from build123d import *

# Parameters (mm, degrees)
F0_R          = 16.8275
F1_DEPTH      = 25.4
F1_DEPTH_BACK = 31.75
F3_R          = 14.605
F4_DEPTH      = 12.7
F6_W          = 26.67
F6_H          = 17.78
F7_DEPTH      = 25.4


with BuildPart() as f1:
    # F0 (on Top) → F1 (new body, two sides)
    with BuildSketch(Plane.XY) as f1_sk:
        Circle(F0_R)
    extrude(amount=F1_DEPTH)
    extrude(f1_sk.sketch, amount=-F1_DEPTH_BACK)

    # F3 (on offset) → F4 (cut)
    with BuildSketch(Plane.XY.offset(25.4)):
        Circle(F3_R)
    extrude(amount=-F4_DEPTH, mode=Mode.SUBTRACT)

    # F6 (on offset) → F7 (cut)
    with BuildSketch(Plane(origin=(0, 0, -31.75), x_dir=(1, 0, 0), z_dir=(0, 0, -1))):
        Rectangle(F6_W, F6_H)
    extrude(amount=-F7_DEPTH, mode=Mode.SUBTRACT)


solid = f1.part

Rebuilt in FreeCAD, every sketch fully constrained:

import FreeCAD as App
import Part
import Sketcher
from FreeCAD import Vector
Q = App.Units.Quantity

doc = App.newDocument("Part")
body = doc.addObject("PartDesign::Body", "Body")

sketch1 = doc.addObject("Sketcher::SketchObject", "Sketch")
body.addObject(sketch1)
sketch1.AttachmentSupport = (doc.XY_Plane, [""])
sketch1.MapMode = "FlatFace"
sketch1.addGeometry(Part.Circle(Vector(0, 0, 0), Vector(0, 0, 1), 17), False)
sketch1.addConstraint([
    Sketcher.Constraint("Coincident", 0, 3, -1, 1),
    Sketcher.Constraint("Diameter", 0, Q("1.325 in")),
])
pad1 = doc.addObject("PartDesign::Pad", "Pad")
body.addObject(pad1)
pad1.Profile = sketch1
pad1.Type = "TwoLengths"
pad1.Length = Q("1 in")
pad1.Length2 = Q("1.25 in")

sketch2 = doc.addObject("Sketcher::SketchObject", "Sketch001")
body.addObject(sketch2)
sketch2.AttachmentSupport = (doc.XY_Plane, [""])
sketch2.MapMode = "FlatFace"
sketch2.AttachmentOffset = App.Placement(Vector(0, 0, 1 * 25.4), App.Rotation())
sketch2.addGeometry(Part.Circle(Vector(0, 0, 0), Vector(0, 0, 1), 15), False)
sketch2.addConstraint([
    Sketcher.Constraint("Coincident", 0, 3, -1, 1),
    Sketcher.Constraint("Diameter", 0, Q("1.15 in")),
])
pocket1 = doc.addObject("PartDesign::Pocket", "Pocket")
body.addObject(pocket1)
pocket1.Profile = sketch2
pocket1.Length = Q("0.5 in")

sketch3 = doc.addObject("Sketcher::SketchObject", "Sketch002")
body.addObject(sketch3)
sketch3.AttachmentSupport = (doc.XY_Plane, [""])
sketch3.MapMode = "FlatFace"
sketch3.AttachmentOffset = App.Placement(Vector(0, 0, -1.25 * 25.4), App.Rotation())
sketch3.addGeometry([
    Part.LineSegment(Vector(-13, -9, 0), Vector(-13, 9, 0)),
    Part.LineSegment(Vector(-13, 9, 0), Vector(13, 9, 0)),
    Part.LineSegment(Vector(13, 9, 0), Vector(13, -9, 0)),
    Part.LineSegment(Vector(13, -9, 0), Vector(-13, -9, 0)),
], False)
sketch3.addConstraint([
    Sketcher.Constraint("Coincident", 0, 2, 1, 1),
    Sketcher.Constraint("Coincident", 1, 2, 2, 1),
    Sketcher.Constraint("Coincident", 2, 2, 3, 1),
    Sketcher.Constraint("Coincident", 3, 2, 0, 1),
    Sketcher.Constraint("Vertical", 0),
    Sketcher.Constraint("Horizontal", 1),
    Sketcher.Constraint("Vertical", 2),
    Sketcher.Constraint("Horizontal", 3),
    Sketcher.Constraint("Symmetric", 0, 2, 2, 2, -1, 1),
    Sketcher.Constraint("DistanceY", 0, 1, 0, 2, Q("0.7 in")),
    Sketcher.Constraint("DistanceX", 1, 1, 1, 2, Q("1.05 in")),
])
pocket2 = doc.addObject("PartDesign::Pocket", "Pocket001")
body.addObject(pocket2)
pocket2.Profile = sketch3
pocket2.Length = Q("1 in")
pocket2.Reversed = True

doc.recompute()
